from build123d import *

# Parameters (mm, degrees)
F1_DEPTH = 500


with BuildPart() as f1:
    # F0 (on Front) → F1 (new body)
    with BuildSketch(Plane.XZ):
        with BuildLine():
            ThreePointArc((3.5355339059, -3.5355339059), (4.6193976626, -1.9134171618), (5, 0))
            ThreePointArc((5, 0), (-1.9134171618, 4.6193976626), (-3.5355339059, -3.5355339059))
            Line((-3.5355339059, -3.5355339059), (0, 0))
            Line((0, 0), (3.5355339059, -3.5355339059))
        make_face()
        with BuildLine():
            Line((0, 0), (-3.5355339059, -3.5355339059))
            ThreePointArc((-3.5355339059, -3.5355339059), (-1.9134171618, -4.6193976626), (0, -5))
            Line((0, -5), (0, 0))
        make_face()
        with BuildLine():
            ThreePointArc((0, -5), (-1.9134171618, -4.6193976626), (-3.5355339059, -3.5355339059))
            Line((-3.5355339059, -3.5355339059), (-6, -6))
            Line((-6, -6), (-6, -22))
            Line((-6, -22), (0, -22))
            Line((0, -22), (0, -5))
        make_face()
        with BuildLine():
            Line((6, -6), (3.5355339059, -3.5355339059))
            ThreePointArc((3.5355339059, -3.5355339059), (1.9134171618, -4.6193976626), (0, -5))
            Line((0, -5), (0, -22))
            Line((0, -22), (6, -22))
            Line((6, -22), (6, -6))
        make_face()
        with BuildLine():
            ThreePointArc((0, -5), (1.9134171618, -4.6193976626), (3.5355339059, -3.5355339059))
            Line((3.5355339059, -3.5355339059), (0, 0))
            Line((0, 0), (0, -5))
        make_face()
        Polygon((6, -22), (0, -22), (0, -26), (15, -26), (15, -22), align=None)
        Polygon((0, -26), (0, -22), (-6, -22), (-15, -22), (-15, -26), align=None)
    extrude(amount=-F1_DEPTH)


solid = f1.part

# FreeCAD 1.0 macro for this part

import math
import FreeCAD as App
import Part
import Sketcher
from FreeCAD import Vector

doc = App.newDocument("Part")
body = doc.addObject("PartDesign::Body", "Body")

# Sketch on XZ plane
sketch1 = body.newObject("Sketcher::SketchObject", "Sketch")
sketch1.AttachmentSupport = (doc.getObject("XZ_Plane"), [""])
sketch1.MapMode = "FlatFace"
sketch1.addGeometry(Part.LineSegment(Vector(6, -6, 0), Vector(3.5, -3.5, 0)), False)
sketch1.addGeometry(Part.ArcOfCircle(Part.Circle(Vector(0, 0, 0), Vector(0, 0, 1), 5), math.radians(-45), math.radians(0)), False)
sketch1.addGeometry(Part.ArcOfCircle(Part.Circle(Vector(0, 0, 0), Vector(0, 0, 1), 5), math.radians(0), math.radians(225)), False)
sketch1.addGeometry(Part.LineSegment(Vector(-3.5, -3.5, 0), Vector(-6, -6, 0)), False)
sketch1.addGeometry(Part.LineSegment(Vector(-6, -6, 0), Vector(-6, -22, 0)), False)
sketch1.addGeometry(Part.LineSegment(Vector(-6, -22, 0), Vector(-15, -22, 0)), False)
sketch1.addGeometry(Part.LineSegment(Vector(-15, -22, 0), Vector(-15, -26, 0)), False)
sketch1.addGeometry(Part.LineSegment(Vector(-15, -26, 0), Vector(15, -26, 0)), False)
sketch1.addGeometry(Part.LineSegment(Vector(15, -26, 0), Vector(15, -22, 0)), False)
sketch1.addGeometry(Part.LineSegment(Vector(15, -22, 0), Vector(6, -22, 0)), False)
sketch1.addGeometry(Part.LineSegment(Vector(6, -22, 0), Vector(6, -6, 0)), False)
sketch1.addConstraint(Sketcher.Constraint("Coincident", 0, 2, 1, 1))
sketch1.addConstraint(Sketcher.Constraint("Tangent", 1, 2, 2, 1))
sketch1.addConstraint(Sketcher.Constraint("Coincident", 2, 2, 3, 1))
sketch1.addConstraint(Sketcher.Constraint("Coincident", 3, 2, 4, 1))
sketch1.addConstraint(Sketcher.Constraint("Coincident", 4, 2, 5, 1))
sketch1.addConstraint(Sketcher.Constraint("Coincident", 5, 2, 6, 1))
sketch1.addConstraint(Sketcher.Constraint("Coincident", 6, 2, 7, 1))
sketch1.addConstraint(Sketcher.Constraint("Coincident", 7, 2, 8, 1))
sketch1.addConstraint(Sketcher.Constraint("Coincident", 8, 2, 9, 1))
sketch1.addConstraint(Sketcher.Constraint("Coincident", 9, 2, 10, 1))
sketch1.addConstraint(Sketcher.Constraint("Coincident", 10, 2, 0, 1))
sketch1.addConstraint(Sketcher.Constraint("Vertical", 4))
sketch1.addConstraint(Sketcher.Constraint("Horizontal", 5))
sketch1.addConstraint(Sketcher.Constraint("Vertical", 6))
sketch1.addConstraint(Sketcher.Constraint("Horizontal", 7))
sketch1.addConstraint(Sketcher.Constraint("Vertical", 8))
sketch1.addConstraint(Sketcher.Constraint("Horizontal", 9))
sketch1.addConstraint(Sketcher.Constraint("Vertical", 10))
sketch1.addConstraint(Sketcher.Constraint("Coincident", 1, 3, -1, 1))
sketch1.addConstraint(Sketcher.Constraint("Equal", 1, 2))
sketch1.addConstraint(Sketcher.Constraint("Symmetric", 5, 2, 8, 2, -2))
sketch1.addConstraint(Sketcher.Constraint("Symmetric", 3, 2, 10, 2, -2))
sketch1.addConstraint(Sketcher.Constraint("PointOnObject", 1, 2, -1))
sketch1.addConstraint(Sketcher.Constraint("Perpendicular", 0, 3))
sketch1.addConstraint(Sketcher.Constraint("Horizontal", 0, 2, 2, 2))
sketch1.addConstraint(Sketcher.Constraint("Radius", 1, 5.0))
sketch1.addConstraint(Sketcher.Constraint("DistanceX", 5, 2, 5, 1, 9.0))
sketch1.addConstraint(Sketcher.Constraint("DistanceX", 7, 1, 7, 2, 30.0))
sketch1.addConstraint(Sketcher.Constraint("DistanceY", 4, 2, 4, 1, 16.0))
sketch1.addConstraint(Sketcher.Constraint("DistanceY", 6, 2, 6, 1, 4.0))
sketch1.addConstraint(Sketcher.Constraint("DistanceY", 3, 2, -1, 1, 6.0))
pad1 = body.newObject("PartDesign::Pad", "Pad")
pad1.Profile = sketch1
pad1.Length = 500
pad1.Reversed = True

doc.recompute()
